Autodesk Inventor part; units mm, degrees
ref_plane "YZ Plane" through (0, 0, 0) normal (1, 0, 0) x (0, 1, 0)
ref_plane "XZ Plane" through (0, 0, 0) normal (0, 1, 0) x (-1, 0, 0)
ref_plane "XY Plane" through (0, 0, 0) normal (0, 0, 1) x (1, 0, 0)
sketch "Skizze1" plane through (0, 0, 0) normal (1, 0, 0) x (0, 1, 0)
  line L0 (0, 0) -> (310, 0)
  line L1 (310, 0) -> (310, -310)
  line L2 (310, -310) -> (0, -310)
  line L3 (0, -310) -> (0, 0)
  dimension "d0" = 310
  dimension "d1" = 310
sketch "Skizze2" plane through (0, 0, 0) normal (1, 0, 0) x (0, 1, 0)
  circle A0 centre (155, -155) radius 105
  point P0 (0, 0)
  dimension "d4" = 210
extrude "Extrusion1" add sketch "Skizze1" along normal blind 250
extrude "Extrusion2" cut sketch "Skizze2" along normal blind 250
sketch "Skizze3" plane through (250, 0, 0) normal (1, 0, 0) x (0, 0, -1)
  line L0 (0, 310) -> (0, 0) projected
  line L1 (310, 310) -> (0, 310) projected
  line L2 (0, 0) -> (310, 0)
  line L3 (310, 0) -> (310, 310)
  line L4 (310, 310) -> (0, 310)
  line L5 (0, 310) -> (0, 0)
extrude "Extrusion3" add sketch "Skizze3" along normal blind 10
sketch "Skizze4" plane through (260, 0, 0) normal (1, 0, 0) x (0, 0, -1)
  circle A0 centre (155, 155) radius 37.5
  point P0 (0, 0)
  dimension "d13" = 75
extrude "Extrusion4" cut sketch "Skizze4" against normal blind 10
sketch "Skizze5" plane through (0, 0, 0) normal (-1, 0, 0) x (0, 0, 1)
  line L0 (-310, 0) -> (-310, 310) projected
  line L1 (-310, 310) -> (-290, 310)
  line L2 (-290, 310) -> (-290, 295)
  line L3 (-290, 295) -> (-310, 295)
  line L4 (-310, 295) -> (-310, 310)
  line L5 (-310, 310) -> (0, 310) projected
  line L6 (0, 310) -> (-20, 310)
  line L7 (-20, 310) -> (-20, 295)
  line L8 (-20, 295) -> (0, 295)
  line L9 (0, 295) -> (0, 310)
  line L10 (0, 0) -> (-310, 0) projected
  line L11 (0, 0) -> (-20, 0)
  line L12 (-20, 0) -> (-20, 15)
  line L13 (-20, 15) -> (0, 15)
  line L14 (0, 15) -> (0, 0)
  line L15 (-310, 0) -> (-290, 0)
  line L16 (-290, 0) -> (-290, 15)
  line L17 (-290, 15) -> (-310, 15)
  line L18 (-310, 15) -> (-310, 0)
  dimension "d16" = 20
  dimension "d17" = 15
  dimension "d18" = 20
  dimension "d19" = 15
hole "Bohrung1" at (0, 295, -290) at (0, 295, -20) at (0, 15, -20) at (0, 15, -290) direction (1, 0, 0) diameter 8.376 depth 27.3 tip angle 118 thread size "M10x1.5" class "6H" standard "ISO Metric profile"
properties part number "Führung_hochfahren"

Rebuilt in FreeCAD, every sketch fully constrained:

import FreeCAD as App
import Part
import Sketcher
Q = App.Units.Quantity


def add_polygon(sketch, points):
    """Adds a closed chain of lines whose ends are joined by coincident constraints."""
    first, n = sketch.GeometryCount, len(points)
    for a, b in zip(points, points[1:] + points[:1]):
        sketch.addGeometry(Part.LineSegment(App.Vector(*a, 0), App.Vector(*b, 0)), False)
    for i in range(n):
        sketch.addConstraint(Sketcher.Constraint("Coincident", first + i, 2, first + (i + 1) % n, 1))

doc = App.newDocument("Part")
body = doc.addObject("PartDesign::Body", "Body")

# Sketch on YZ plane
sketch1 = doc.addObject("Sketcher::SketchObject", "Sketch")
body.addObject(sketch1)
sketch1.AttachmentSupport = (doc.YZ_Plane, [""])
sketch1.MapMode = "FlatFace"
add_polygon(sketch1, [(310, 0), (0, 0), (0, -310), (310, -310)])  # lines 0-3
sketch1.addConstraint(Sketcher.Constraint("Horizontal", 0))
sketch1.addConstraint(Sketcher.Constraint("Vertical", 1))
sketch1.addConstraint(Sketcher.Constraint("Horizontal", 2))
sketch1.addConstraint(Sketcher.Constraint("Vertical", 3))
sketch1.addConstraint(Sketcher.Constraint("Coincident", 0, 2, -1, 1))
sketch1.addConstraint(Sketcher.Constraint("Equal", 2, 1))
sketch1.addConstraint(Sketcher.Constraint("DistanceX", 0, 2, 0, 1, Q("310 mm")))
pad1 = doc.addObject("PartDesign::Pad", "Pad")
body.addObject(pad1)
pad1.Profile = sketch1
pad1.Length = 250

# Sketch on YZ plane
sketch2 = doc.addObject("Sketcher::SketchObject", "Sketch001")
body.addObject(sketch2)
sketch2.AttachmentSupport = (doc.YZ_Plane, [""])
sketch2.MapMode = "FlatFace"
sketch2.addGeometry(Part.Circle(App.Vector(155, -155, 0), App.Vector(0, 0, 1), 105), False)
sketch2.addConstraint(Sketcher.Constraint("Diameter", 0, Q("210 mm")))
sketch2.addConstraint(Sketcher.Constraint("DistanceX", -1, 1, 0, 3, Q("155 mm")))
sketch2.addConstraint(Sketcher.Constraint("DistanceY", 0, 3, -1, 1, Q("155 mm")))
pocket1 = doc.addObject("PartDesign::Pocket", "Pocket")
body.addObject(pocket1)
pocket1.Profile = sketch2
pocket1.Length = 250
pocket1.Reversed = True

# Sketch on YZ plane
sketch3 = doc.addObject("Sketcher::SketchObject", "Sketch002")
body.addObject(sketch3)
sketch3.AttachmentSupport = (doc.YZ_Plane, [""])
sketch3.MapMode = "FlatFace"
sketch3.AttachmentOffset = App.Placement(App.Vector(0, 0, 250), App.Rotation())
add_polygon(sketch3, [(310, -310), (310, 0), (0, 0), (0, -310)])  # lines 0-3
sketch3.addConstraint(Sketcher.Constraint("Vertical", 0))
sketch3.addConstraint(Sketcher.Constraint("Horizontal", 1))
sketch3.addConstraint(Sketcher.Constraint("Vertical", 2))
sketch3.addConstraint(Sketcher.Constraint("Horizontal", 3))
sketch3.addConstraint(Sketcher.Constraint("Coincident", 1, 2, -1, 1))
sketch3.addConstraint(Sketcher.Constraint("Equal", 3, 0))
sketch3.addConstraint(Sketcher.Constraint("DistanceX", 1, 2, 1, 1, Q("310 mm")))
pad2 = doc.addObject("PartDesign::Pad", "Pad001")
body.addObject(pad2)
pad2.Profile = sketch3
pad2.Length = 10

# Sketch on YZ plane
sketch4 = doc.addObject("Sketcher::SketchObject", "Sketch003")
body.addObject(sketch4)
sketch4.AttachmentSupport = (doc.YZ_Plane, [""])
sketch4.MapMode = "FlatFace"
sketch4.AttachmentOffset = App.Placement(App.Vector(0, 0, 260), App.Rotation())
sketch4.addGeometry(Part.Circle(App.Vector(155, -155, 0), App.Vector(0, 0, 1), 38), False)
sketch4.addConstraint(Sketcher.Constraint("Diameter", 0, Q("75 mm")))
sketch4.addConstraint(Sketcher.Constraint("DistanceX", -1, 1, 0, 3, Q("155 mm")))
sketch4.addConstraint(Sketcher.Constraint("DistanceY", 0, 3, -1, 1, Q("155 mm")))
pocket2 = doc.addObject("PartDesign::Pocket", "Pocket001")
body.addObject(pocket2)
pocket2.Profile = sketch4
pocket2.Length = 10

# Sketch on YZ plane
sketch5 = doc.addObject("Sketcher::SketchObject", "Sketch004")
body.addObject(sketch5)
sketch5.AttachmentSupport = (doc.YZ_Plane, [""])
sketch5.MapMode = "FlatFace"
sketch5.addGeometry(Part.Circle(App.Vector(295, -290, 0), App.Vector(0, 0, 1), 4.2), False)
sketch5.addGeometry(Part.Circle(App.Vector(295, -20, 0), App.Vector(0, 0, 1), 4.2), False)
sketch5.addGeometry(Part.Circle(App.Vector(15, -20, 0), App.Vector(0, 0, 1), 4.2), False)
sketch5.addGeometry(Part.Circle(App.Vector(15, -290, 0), App.Vector(0, 0, 1), 4.2), False)
sketch5.addConstraint(Sketcher.Constraint("Equal", 0, 1))
sketch5.addConstraint(Sketcher.Constraint("Equal", 1, 2))
sketch5.addConstraint(Sketcher.Constraint("Equal", 2, 3))
sketch5.addConstraint(Sketcher.Constraint("Horizontal", 1, 3, 2, 3))
sketch5.addConstraint(Sketcher.Constraint("Horizontal", 0, 3, 3, 3))
sketch5.addConstraint(Sketcher.Constraint("Vertical", 0, 3, 1, 3))
sketch5.addConstraint(Sketcher.Constraint("Vertical", 2, 3, 3, 3))
sketch5.addConstraint(Sketcher.Constraint("Diameter", 0, Q("8.376 mm")))
sketch5.addConstraint(Sketcher.Constraint("DistanceX", -1, 1, 0, 3, Q("295 mm")))
sketch5.addConstraint(Sketcher.Constraint("DistanceY", 0, 3, -1, 1, Q("290 mm")))
sketch5.addConstraint(Sketcher.Constraint("DistanceY", 1, 3, -1, 1, Q("20 mm")))
sketch5.addConstraint(Sketcher.Constraint("DistanceX", -1, 1, 2, 3, Q("15 mm")))
doc.recompute()
hole = doc.addObject("PartDesign::Hole", "Hole")
body.addObject(hole)
hole.Profile = sketch5
hole.ThreadType = "None"
hole.Diameter = 8.376
hole.DepthType = "Dimension"
hole.Depth = 27.3
hole.DrillPoint = "Angled"
hole.DrillPointAngle = 118
hole.Reversed = True

doc.recompute()
